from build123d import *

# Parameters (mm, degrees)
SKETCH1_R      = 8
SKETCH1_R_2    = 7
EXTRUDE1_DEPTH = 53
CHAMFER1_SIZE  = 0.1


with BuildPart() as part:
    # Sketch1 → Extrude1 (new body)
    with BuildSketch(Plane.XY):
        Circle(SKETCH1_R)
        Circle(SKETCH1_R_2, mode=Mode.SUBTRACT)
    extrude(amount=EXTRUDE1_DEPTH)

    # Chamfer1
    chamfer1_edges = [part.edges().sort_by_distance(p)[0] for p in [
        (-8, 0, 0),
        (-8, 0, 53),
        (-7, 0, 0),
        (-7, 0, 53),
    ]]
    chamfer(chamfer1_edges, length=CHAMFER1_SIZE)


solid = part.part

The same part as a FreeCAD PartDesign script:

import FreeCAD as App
import Part
import Sketcher

V = App.Vector


def edges_at(feature, points):
    """Names of the edges that pass closest to the given points."""
    edges = feature.Shape.Edges
    near = lambda p: min(range(len(edges)), key=lambda i: edges[i].distToShape(Part.Vertex(*p))[0])
    return sorted({f"Edge{near(p) + 1}" for p in points})

doc = App.newDocument("Part")
body = doc.addObject("PartDesign::Body", "Body")

# Sketch on XY plane
sketch1 = body.newObject("Sketcher::SketchObject", "Sketch")
sketch1.AttachmentSupport = (doc.getObject("XY_Plane"), [""])
sketch1.MapMode = "FlatFace"
sketch1.addGeometry([
    Part.Circle(V(0, 0, 0), V(0, 0, 1), 8),
    Part.Circle(V(0, 0, 0), V(0, 0, 1), 7),
], False)
sketch1.addConstraint([
    Sketcher.Constraint("Coincident", 0, 3, -1, 1),
    Sketcher.Constraint("Coincident", 1, 3, -1, 1),
    Sketcher.Constraint("Diameter", 0, 16.0),
    Sketcher.Constraint("Diameter", 1, 14.0),
])
pad1 = body.newObject("PartDesign::Pad", "Pad")
pad1.Profile = sketch1
pad1.Length = 53
doc.recompute()

chamfer = body.newObject("PartDesign::Chamfer", "Chamfer")
chamfer.Base = (pad1, edges_at(pad1, [
    (-8, 0, 0),
    (-8, 0, 53),
    (-7, 0, 0),
    (-7, 0, 53),
]))
chamfer.Size = 0.1

doc.recompute()
